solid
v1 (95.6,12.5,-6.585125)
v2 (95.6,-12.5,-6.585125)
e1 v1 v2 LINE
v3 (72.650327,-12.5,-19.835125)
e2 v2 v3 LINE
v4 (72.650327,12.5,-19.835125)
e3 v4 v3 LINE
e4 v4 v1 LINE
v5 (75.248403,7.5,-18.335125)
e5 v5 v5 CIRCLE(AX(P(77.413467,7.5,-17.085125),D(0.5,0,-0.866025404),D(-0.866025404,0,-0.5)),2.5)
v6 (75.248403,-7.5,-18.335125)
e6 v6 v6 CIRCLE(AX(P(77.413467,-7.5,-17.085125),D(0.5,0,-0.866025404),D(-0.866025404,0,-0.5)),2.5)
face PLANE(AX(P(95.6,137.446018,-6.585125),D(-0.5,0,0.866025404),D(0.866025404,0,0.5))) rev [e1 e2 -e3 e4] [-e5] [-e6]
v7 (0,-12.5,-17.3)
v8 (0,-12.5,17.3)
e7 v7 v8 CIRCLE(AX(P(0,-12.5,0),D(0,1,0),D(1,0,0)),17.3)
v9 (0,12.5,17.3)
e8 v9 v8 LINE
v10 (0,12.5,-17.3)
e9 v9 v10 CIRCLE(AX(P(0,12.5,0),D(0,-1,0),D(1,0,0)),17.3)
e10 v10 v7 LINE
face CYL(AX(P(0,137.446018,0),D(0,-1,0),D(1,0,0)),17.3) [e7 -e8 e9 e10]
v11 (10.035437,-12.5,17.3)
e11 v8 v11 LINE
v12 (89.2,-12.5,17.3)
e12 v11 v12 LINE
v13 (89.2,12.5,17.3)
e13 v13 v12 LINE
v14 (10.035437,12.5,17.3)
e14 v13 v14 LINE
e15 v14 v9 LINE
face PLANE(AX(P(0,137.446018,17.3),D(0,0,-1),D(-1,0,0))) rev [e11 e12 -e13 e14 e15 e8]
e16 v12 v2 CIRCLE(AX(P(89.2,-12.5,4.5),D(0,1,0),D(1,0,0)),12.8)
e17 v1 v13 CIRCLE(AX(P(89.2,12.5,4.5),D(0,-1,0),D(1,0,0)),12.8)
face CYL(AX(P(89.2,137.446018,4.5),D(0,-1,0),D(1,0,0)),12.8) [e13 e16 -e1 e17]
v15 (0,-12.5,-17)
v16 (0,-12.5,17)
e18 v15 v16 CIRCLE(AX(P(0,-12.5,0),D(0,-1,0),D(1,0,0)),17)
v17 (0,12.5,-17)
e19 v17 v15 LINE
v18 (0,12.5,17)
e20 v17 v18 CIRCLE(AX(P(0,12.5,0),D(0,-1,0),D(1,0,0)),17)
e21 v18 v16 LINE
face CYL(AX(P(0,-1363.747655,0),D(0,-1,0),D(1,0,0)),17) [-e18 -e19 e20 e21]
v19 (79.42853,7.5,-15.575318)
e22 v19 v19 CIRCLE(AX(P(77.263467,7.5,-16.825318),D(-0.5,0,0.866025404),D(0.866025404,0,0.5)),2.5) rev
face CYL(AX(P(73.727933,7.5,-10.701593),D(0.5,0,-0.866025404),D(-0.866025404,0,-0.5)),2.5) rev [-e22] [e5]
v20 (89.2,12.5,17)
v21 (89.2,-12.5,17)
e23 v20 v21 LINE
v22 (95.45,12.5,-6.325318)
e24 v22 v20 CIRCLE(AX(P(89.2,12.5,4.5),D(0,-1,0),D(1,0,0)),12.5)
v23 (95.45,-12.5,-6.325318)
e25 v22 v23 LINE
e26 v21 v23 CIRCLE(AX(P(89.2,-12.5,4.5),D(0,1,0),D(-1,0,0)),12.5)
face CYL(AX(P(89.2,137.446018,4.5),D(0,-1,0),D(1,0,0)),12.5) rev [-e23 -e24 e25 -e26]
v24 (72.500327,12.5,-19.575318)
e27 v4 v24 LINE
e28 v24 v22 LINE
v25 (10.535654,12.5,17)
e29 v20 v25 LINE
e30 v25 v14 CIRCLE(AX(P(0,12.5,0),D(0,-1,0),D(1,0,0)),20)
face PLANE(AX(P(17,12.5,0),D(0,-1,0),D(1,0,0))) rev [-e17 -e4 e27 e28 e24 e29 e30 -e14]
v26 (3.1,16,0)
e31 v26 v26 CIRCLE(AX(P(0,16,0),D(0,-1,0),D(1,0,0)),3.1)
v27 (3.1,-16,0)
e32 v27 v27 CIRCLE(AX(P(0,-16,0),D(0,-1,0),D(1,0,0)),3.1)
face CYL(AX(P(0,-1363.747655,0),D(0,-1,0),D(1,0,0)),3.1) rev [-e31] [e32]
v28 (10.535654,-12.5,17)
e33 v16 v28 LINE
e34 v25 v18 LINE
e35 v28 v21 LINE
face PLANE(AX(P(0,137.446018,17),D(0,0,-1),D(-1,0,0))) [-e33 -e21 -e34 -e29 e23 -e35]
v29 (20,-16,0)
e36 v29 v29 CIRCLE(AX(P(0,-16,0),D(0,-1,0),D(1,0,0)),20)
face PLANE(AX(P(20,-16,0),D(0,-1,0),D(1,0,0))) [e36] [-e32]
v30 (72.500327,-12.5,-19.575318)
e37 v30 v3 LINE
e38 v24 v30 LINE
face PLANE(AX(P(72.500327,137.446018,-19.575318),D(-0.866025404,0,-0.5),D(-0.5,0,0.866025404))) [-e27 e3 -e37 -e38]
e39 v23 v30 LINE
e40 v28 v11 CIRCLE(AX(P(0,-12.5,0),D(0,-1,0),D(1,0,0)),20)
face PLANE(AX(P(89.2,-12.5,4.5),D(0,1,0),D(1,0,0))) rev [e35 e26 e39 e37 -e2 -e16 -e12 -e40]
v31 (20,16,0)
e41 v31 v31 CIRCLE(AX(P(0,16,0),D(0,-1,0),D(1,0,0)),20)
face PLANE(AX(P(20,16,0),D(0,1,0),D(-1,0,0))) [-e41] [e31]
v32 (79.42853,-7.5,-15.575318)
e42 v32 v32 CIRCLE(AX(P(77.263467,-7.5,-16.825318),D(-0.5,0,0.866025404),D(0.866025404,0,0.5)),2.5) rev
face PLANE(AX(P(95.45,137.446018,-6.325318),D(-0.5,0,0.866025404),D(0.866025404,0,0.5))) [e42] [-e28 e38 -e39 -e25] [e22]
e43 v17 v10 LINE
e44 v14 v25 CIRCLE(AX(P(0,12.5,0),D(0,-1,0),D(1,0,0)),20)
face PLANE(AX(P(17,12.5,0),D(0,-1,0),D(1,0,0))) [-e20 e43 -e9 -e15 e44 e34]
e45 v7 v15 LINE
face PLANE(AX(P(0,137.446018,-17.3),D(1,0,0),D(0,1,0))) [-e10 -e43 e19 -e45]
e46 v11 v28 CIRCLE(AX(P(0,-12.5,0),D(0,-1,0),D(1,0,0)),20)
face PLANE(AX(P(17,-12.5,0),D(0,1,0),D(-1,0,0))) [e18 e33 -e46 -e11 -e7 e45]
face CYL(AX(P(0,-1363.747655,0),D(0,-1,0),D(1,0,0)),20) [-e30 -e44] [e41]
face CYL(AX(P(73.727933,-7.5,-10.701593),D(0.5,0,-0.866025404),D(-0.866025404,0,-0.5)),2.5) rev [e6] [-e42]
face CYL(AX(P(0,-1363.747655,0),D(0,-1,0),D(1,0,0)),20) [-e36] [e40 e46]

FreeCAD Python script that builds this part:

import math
import FreeCAD as App
import Part
import Sketcher
Q = App.Units.Quantity

doc = App.newDocument("Part")
params = doc.addObject("Spreadsheet::Sheet", "Params")
for row, (alias, value) in enumerate([
    ("sketch1_width", "3 mm"),
    ("sketch1_height", "32 mm"),
    ("sketch1_height2", "25 mm"),
    ("sketch1_width2", "16.9 mm"),
    ("revolution_angle", "360 deg"),
    ("sketch2_radius", "17 mm"),
    ("sketch2_radius2", "17.3 mm"),
    ("sketch2_radius3", "12.8 mm"),
    ("sketch2_width", "89.2 mm"),
    ("sketch2_length", "26.5 mm"),
    ("pad1_length", "25 mm"),
    ("sketch3_diameter", "5 mm"),
    ("pocket1_length", "0.3 mm"),
], start=1):
    params.set(f"A{row}", alias)
    params.set(f"B{row}", "=" + value)
    params.setAlias(f"B{row}", alias)

body = doc.addObject("PartDesign::Body", "Body")

# Sketch on XY plane
sketch1 = doc.addObject("Sketcher::SketchObject", "Sketch")
body.addObject(sketch1)
sketch1.AttachmentSupport = (doc.XY_Plane, [""])
sketch1.MapMode = "FlatFace"
sketch1.addGeometry(Part.LineSegment(App.Vector(3.1, 16, 0), App.Vector(3.1, -16, 0)), False)
sketch1.addGeometry(Part.LineSegment(App.Vector(3.1, -16, 0), App.Vector(20, -16, 0)), False)
sketch1.addGeometry(Part.LineSegment(App.Vector(20, -16, 0), App.Vector(20, -12.5, 0)), False)
sketch1.addGeometry(Part.LineSegment(App.Vector(20, -12.5, 0), App.Vector(17, -12.5, 0)), False)
sketch1.addGeometry(Part.LineSegment(App.Vector(17, -12.5, 0), App.Vector(17, 12.5, 0)), False)
sketch1.addGeometry(Part.LineSegment(App.Vector(17, 12.5, 0), App.Vector(20, 12.5, 0)), False)
sketch1.addGeometry(Part.LineSegment(App.Vector(20, 12.5, 0), App.Vector(20, 16, 0)), False)
sketch1.addGeometry(Part.LineSegment(App.Vector(20, 16, 0), App.Vector(3.1, 16, 0)), False)
sketch1.addConstraint(Sketcher.Constraint("Coincident", 0, 2, 1, 1))
sketch1.addConstraint(Sketcher.Constraint("Coincident", 1, 2, 2, 1))
sketch1.addConstraint(Sketcher.Constraint("Coincident", 2, 2, 3, 1))
sketch1.addConstraint(Sketcher.Constraint("Coincident", 3, 2, 4, 1))
sketch1.addConstraint(Sketcher.Constraint("Coincident", 4, 2, 5, 1))
sketch1.addConstraint(Sketcher.Constraint("Coincident", 5, 2, 6, 1))
sketch1.addConstraint(Sketcher.Constraint("Coincident", 6, 2, 7, 1))
sketch1.addConstraint(Sketcher.Constraint("Coincident", 7, 2, 0, 1))
sketch1.addConstraint(Sketcher.Constraint("Vertical", 0))
sketch1.addConstraint(Sketcher.Constraint("Horizontal", 1))
sketch1.addConstraint(Sketcher.Constraint("Vertical", 2))
sketch1.addConstraint(Sketcher.Constraint("Horizontal", 3))
sketch1.addConstraint(Sketcher.Constraint("Vertical", 4))
sketch1.addConstraint(Sketcher.Constraint("Horizontal", 5))
sketch1.addConstraint(Sketcher.Constraint("Vertical", 6))
sketch1.addConstraint(Sketcher.Constraint("Horizontal", 7))
sketch1.addConstraint(Sketcher.Constraint("Symmetric", 2, 2, 5, 2, -1))
sketch1.addConstraint(Sketcher.Constraint("Equal", 2, 6))
sketch1.addConstraint(Sketcher.Constraint("DistanceX", 3, 2, 3, 1, Q("3 mm")))
sketch1.addConstraint(Sketcher.Constraint("DistanceY", 0, 2, 0, 1, Q("32 mm")))
sketch1.addConstraint(Sketcher.Constraint("DistanceY", 4, 1, 4, 2, Q("25 mm")))
sketch1.addConstraint(Sketcher.Constraint("DistanceX", 1, 1, 1, 2, Q("16.9 mm")))
sketch1.addConstraint(Sketcher.Constraint("DistanceX", -1, 1, 1, 2, Q("20 mm")))
sketch1.setExpression("Constraints[18]", "Params.sketch1_width")
sketch1.setExpression("Constraints[19]", "Params.sketch1_height")
sketch1.setExpression("Constraints[20]", "Params.sketch1_height2")
sketch1.setExpression("Constraints[21]", "Params.sketch1_width2")
revolution = doc.addObject("PartDesign::Revolution", "Revolution")
body.addObject(revolution)
revolution.Profile = sketch1
revolution.ReferenceAxis = (sketch1, ["V_Axis"])
revolution.setExpression("Angle", "Params.revolution_angle")

# Sketch on XZ plane
sketch2 = doc.addObject("Sketcher::SketchObject", "Sketch001")
body.addObject(sketch2)
sketch2.AttachmentSupport = (doc.XZ_Plane, [""])
sketch2.MapMode = "FlatFace"
sketch2.AttachmentOffset = App.Placement(App.Vector(0, 0, 12.5), App.Rotation())
sketch2.addGeometry(Part.ArcOfCircle(Part.Circle(App.Vector(0, 0, 0), App.Vector(0, 0, 1), 17), math.radians(90), math.radians(270)), False)
sketch2.addGeometry(Part.LineSegment(App.Vector(0, -17, 0), App.Vector(0, -17.3, 0)), False)
sketch2.addGeometry(Part.ArcOfCircle(Part.Circle(App.Vector(0, 0, 0), App.Vector(0, 0, 1), 17.3), math.radians(90), math.radians(270)), False)
sketch2.addGeometry(Part.LineSegment(App.Vector(0, 17.3, 0), App.Vector(89.2, 17.3, 0)), False)
sketch2.addGeometry(Part.ArcOfCircle(Part.Circle(App.Vector(89.2, 4.5, 0), App.Vector(0, 0, 1), 12.8), math.radians(-60), math.radians(90)), False)
sketch2.addGeometry(Part.LineSegment(App.Vector(95.6, -6.59, 0), App.Vector(72.65, -19.84, 0)), False)
sketch2.addGeometry(Part.LineSegment(App.Vector(72.65, -19.84, 0), App.Vector(72.5, -19.58, 0)), False)
sketch2.addGeometry(Part.LineSegment(App.Vector(72.5, -19.58, 0), App.Vector(95.45, -6.33, 0)), False)
sketch2.addGeometry(Part.ArcOfCircle(Part.Circle(App.Vector(89.2, 4.5, 0), App.Vector(0, 0, 1), 12.5), math.radians(-60), math.radians(90)), False)
sketch2.addGeometry(Part.LineSegment(App.Vector(89.2, 17, 0), App.Vector(0, 17, 0)), False)
sketch2.addConstraint(Sketcher.Constraint("Coincident", 0, 2, 1, 1))
sketch2.addConstraint(Sketcher.Constraint("Coincident", 1, 2, 2, 2))
sketch2.addConstraint(Sketcher.Constraint("Tangent", 2, 1, 3, 1))
sketch2.addConstraint(Sketcher.Constraint("Tangent", 3, 2, 4, 2))
sketch2.addConstraint(Sketcher.Constraint("Tangent", 4, 1, 5, 1))
sketch2.addConstraint(Sketcher.Constraint("Coincident", 5, 2, 6, 1))
sketch2.addConstraint(Sketcher.Constraint("Coincident", 6, 2, 7, 1))
sketch2.addConstraint(Sketcher.Constraint("Tangent", 7, 2, 8, 1))
sketch2.addConstraint(Sketcher.Constraint("Tangent", 8, 2, 9, 1))
sketch2.addConstraint(Sketcher.Constraint("Tangent", 9, 2, 0, 1))
sketch2.addConstraint(Sketcher.Constraint("Vertical", 1))
sketch2.addConstraint(Sketcher.Constraint("Horizontal", 3))
sketch2.addConstraint(Sketcher.Constraint("Horizontal", 9))
sketch2.addConstraint(Sketcher.Constraint("Coincident", 0, 3, -1, 1))
sketch2.addConstraint(Sketcher.Constraint("Coincident", 2, 3, -1, 1))
sketch2.addConstraint(Sketcher.Constraint("Coincident", 8, 3, 4, 3))
sketch2.addConstraint(Sketcher.Constraint("PointOnObject", 0, 2, -2))
sketch2.addConstraint(Sketcher.Constraint("Perpendicular", 5, 6))
sketch2.addConstraint(Sketcher.Constraint("Perpendicular", 6, 7))
sketch2.addConstraint(Sketcher.Constraint("Radius", 0, Q("17 mm")))
sketch2.addConstraint(Sketcher.Constraint("Radius", 2, Q("17.3 mm")))
sketch2.addConstraint(Sketcher.Constraint("Radius", 4, Q("12.8 mm")))
sketch2.addConstraint(Sketcher.Constraint("Angle", 5, Q("-150 deg")))
sketch2.addConstraint(Sketcher.Constraint("DistanceX", 3, 1, 3, 2, Q("89.2 mm")))
sketch2.addConstraint(Sketcher.Constraint("Distance", 5, Q("26.5 mm")))
sketch2.setExpression("Constraints[19]", "Params.sketch2_radius")
sketch2.setExpression("Constraints[20]", "Params.sketch2_radius2")
sketch2.setExpression("Constraints[21]", "Params.sketch2_radius3")
sketch2.setExpression("Constraints[23]", "Params.sketch2_width")
sketch2.setExpression("Constraints[24]", "Params.sketch2_length")
pad1 = doc.addObject("PartDesign::Pad", "Pad")
body.addObject(pad1)
pad1.Profile = sketch2
pad1.setExpression("Length", "Params.pad1_length")
pad1.Reversed = True

# Sketch on an angled plane
sketch3 = doc.addObject("Sketcher::SketchObject", "Sketch002")
body.addObject(sketch3)
sketch3.Placement = App.Placement(App.Vector(26.751443, 0, -46.334858), App.Rotation(App.Vector(-0.866025404, 0, -0.5), App.Vector(0, 1, 0), App.Vector(0.5, 0, -0.866025404), "ZXY"))
sketch3.addGeometry(Part.Circle(App.Vector(-58.5, -7.5, 0), App.Vector(0, 0, 1), 2.5), False)
sketch3.addGeometry(Part.Circle(App.Vector(-58.5, 7.5, 0), App.Vector(0, 0, 1), 2.5), False)
sketch3.addConstraint(Sketcher.Constraint("Equal", 0, 1))
sketch3.addConstraint(Sketcher.Constraint("Symmetric", 0, 3, 1, 3, -1))
sketch3.addConstraint(Sketcher.Constraint("Diameter", 0, Q("5 mm")))
sketch3.addConstraint(Sketcher.Constraint("DistanceY", 0, 3, 1, 3, Q("15 mm")))
sketch3.addConstraint(Sketcher.Constraint("DistanceX", 0, 3, -1, 1, Q("58.499466 mm")))
sketch3.setExpression("Constraints[2]", "Params.sketch3_diameter")
pocket1 = doc.addObject("PartDesign::Pocket", "Pocket")
body.addObject(pocket1)
pocket1.Profile = sketch3
pocket1.setExpression("Length", "Params.pocket1_length")

doc.recompute()
